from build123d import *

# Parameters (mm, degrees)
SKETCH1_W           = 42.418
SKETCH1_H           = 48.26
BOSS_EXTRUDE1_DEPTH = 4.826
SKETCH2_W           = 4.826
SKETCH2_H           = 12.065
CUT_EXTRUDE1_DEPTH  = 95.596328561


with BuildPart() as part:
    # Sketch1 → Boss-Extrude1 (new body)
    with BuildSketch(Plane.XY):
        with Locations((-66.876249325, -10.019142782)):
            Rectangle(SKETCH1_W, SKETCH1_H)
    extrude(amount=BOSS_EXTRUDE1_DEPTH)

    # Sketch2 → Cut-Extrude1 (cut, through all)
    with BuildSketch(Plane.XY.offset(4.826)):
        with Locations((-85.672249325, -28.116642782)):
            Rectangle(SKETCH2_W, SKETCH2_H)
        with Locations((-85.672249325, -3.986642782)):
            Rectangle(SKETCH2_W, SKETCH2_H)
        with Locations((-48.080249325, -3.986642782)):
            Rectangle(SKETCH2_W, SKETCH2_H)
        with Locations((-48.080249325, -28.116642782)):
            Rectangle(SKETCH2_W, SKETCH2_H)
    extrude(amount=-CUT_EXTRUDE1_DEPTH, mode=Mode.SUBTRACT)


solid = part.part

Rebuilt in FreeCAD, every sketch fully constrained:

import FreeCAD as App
import Part
import Sketcher
from FreeCAD import Vector
Q = App.Units.Quantity

doc = App.newDocument("Part")
body = doc.addObject("PartDesign::Body", "Body")

# Sketch on XY plane
sketch1 = body.newObject("Sketcher::SketchObject", "Sketch")
sketch1.AttachmentSupport = (doc.getObject("XY_Plane"), [""])
sketch1.MapMode = "FlatFace"
sketch1.addGeometry(Part.LineSegment(Vector(-88.085249, 14.110857, 0), Vector(-88.085249, -34.149143, 0)), False)
sketch1.addGeometry(Part.LineSegment(Vector(-88.085249, -34.149143, 0), Vector(-45.667249, -34.149143, 0)), False)
sketch1.addGeometry(Part.LineSegment(Vector(-45.667249, -34.149143, 0), Vector(-45.667249, 14.110857, 0)), False)
sketch1.addGeometry(Part.LineSegment(Vector(-45.667249, 14.110857, 0), Vector(-88.085249, 14.110857, 0)), False)
sketch1.addConstraint(Sketcher.Constraint("Coincident", 0, 2, 1, 1))
sketch1.addConstraint(Sketcher.Constraint("Coincident", 1, 2, 2, 1))
sketch1.addConstraint(Sketcher.Constraint("Coincident", 2, 2, 3, 1))
sketch1.addConstraint(Sketcher.Constraint("Coincident", 3, 2, 0, 1))
sketch1.addConstraint(Sketcher.Constraint("Vertical", 0))
sketch1.addConstraint(Sketcher.Constraint("Horizontal", 1))
sketch1.addConstraint(Sketcher.Constraint("Vertical", 2))
sketch1.addConstraint(Sketcher.Constraint("Horizontal", 3))
sketch1.addConstraint(Sketcher.Constraint("DistanceY", 0, 2, 0, 1, Q("1.9 in")))
sketch1.addConstraint(Sketcher.Constraint("DistanceX", 1, 1, 1, 2, Q("1.67 in")))
sketch1.addConstraint(Sketcher.Constraint("DistanceX", 0, 2, -1, 1, 88.085249))
sketch1.addConstraint(Sketcher.Constraint("DistanceY", 0, 2, -1, 1, 34.149143))
pad1 = body.newObject("PartDesign::Pad", "Pad")
pad1.Profile = sketch1
pad1.Length = Q("0.19 in")

# Sketch on XY plane
sketch2 = body.newObject("Sketcher::SketchObject", "Sketch001")
sketch2.AttachmentSupport = (doc.getObject("XY_Plane"), [""])
sketch2.MapMode = "FlatFace"
sketch2.AttachmentOffset = App.Placement(Vector(0, 0, 0.19 * 25.4), App.Rotation())
sketch2.addGeometry(Part.LineSegment(Vector(-88.085249, -22.084143, 0), Vector(-88.085249, -34.149143, 0)), False)
sketch2.addGeometry(Part.LineSegment(Vector(-88.085249, -34.149143, 0), Vector(-83.259249, -34.149143, 0)), False)
sketch2.addGeometry(Part.LineSegment(Vector(-83.259249, -34.149143, 0), Vector(-83.259249, -22.084143, 0)), False)
sketch2.addGeometry(Part.LineSegment(Vector(-83.259249, -22.084143, 0), Vector(-88.085249, -22.084143, 0)), False)
sketch2.addGeometry(Part.LineSegment(Vector(-88.085249, 2.045857, 0), Vector(-88.085249, -10.019143, 0)), False)
sketch2.addGeometry(Part.LineSegment(Vector(-88.085249, -10.019143, 0), Vector(-83.259249, -10.019143, 0)), False)
sketch2.addGeometry(Part.LineSegment(Vector(-83.259249, -10.019143, 0), Vector(-83.259249, 2.045857, 0)), False)
sketch2.addGeometry(Part.LineSegment(Vector(-83.259249, 2.045857, 0), Vector(-88.085249, 2.045857, 0)), False)
sketch2.addGeometry(Part.LineSegment(Vector(-50.493249, 2.045857, 0), Vector(-50.493249, -10.019143, 0)), False)
sketch2.addGeometry(Part.LineSegment(Vector(-50.493249, -10.019143, 0), Vector(-45.667249, -10.019143, 0)), False)
sketch2.addGeometry(Part.LineSegment(Vector(-45.667249, -10.019143, 0), Vector(-45.667249, 2.045857, 0)), False)
sketch2.addGeometry(Part.LineSegment(Vector(-45.667249, 2.045857, 0), Vector(-50.493249, 2.045857, 0)), False)
sketch2.addGeometry(Part.LineSegment(Vector(-50.493249, -22.084143, 0), Vector(-50.493249, -34.149143, 0)), False)
sketch2.addGeometry(Part.LineSegment(Vector(-50.493249, -34.149143, 0), Vector(-45.667249, -34.149143, 0)), False)
sketch2.addGeometry(Part.LineSegment(Vector(-45.667249, -34.149143, 0), Vector(-45.667249, -22.084143, 0)), False)
sketch2.addGeometry(Part.LineSegment(Vector(-45.667249, -22.084143, 0), Vector(-50.493249, -22.084143, 0)), False)
sketch2.addConstraint(Sketcher.Constraint("Coincident", 0, 2, 1, 1))
sketch2.addConstraint(Sketcher.Constraint("Coincident", 1, 2, 2, 1))
sketch2.addConstraint(Sketcher.Constraint("Coincident", 2, 2, 3, 1))
sketch2.addConstraint(Sketcher.Constraint("Coincident", 3, 2, 0, 1))
sketch2.addConstraint(Sketcher.Constraint("Coincident", 4, 2, 5, 1))
sketch2.addConstraint(Sketcher.Constraint("Coincident", 5, 2, 6, 1))
sketch2.addConstraint(Sketcher.Constraint("Coincident", 6, 2, 7, 1))
sketch2.addConstraint(Sketcher.Constraint("Coincident", 7, 2, 4, 1))
sketch2.addConstraint(Sketcher.Constraint("Coincident", 8, 2, 9, 1))
sketch2.addConstraint(Sketcher.Constraint("Coincident", 9, 2, 10, 1))
sketch2.addConstraint(Sketcher.Constraint("Coincident", 10, 2, 11, 1))
sketch2.addConstraint(Sketcher.Constraint("Coincident", 11, 2, 8, 1))
sketch2.addConstraint(Sketcher.Constraint("Coincident", 12, 2, 13, 1))
sketch2.addConstraint(Sketcher.Constraint("Coincident", 13, 2, 14, 1))
sketch2.addConstraint(Sketcher.Constraint("Coincident", 14, 2, 15, 1))
sketch2.addConstraint(Sketcher.Constraint("Coincident", 15, 2, 12, 1))
sketch2.addConstraint(Sketcher.Constraint("Vertical", 0))
sketch2.addConstraint(Sketcher.Constraint("Horizontal", 1))
sketch2.addConstraint(Sketcher.Constraint("Vertical", 2))
sketch2.addConstraint(Sketcher.Constraint("Horizontal", 3))
sketch2.addConstraint(Sketcher.Constraint("Vertical", 4))
sketch2.addConstraint(Sketcher.Constraint("Horizontal", 5))
sketch2.addConstraint(Sketcher.Constraint("Vertical", 6))
sketch2.addConstraint(Sketcher.Constraint("Horizontal", 7))
sketch2.addConstraint(Sketcher.Constraint("Vertical", 8))
sketch2.addConstraint(Sketcher.Constraint("Horizontal", 9))
sketch2.addConstraint(Sketcher.Constraint("Vertical", 10))
sketch2.addConstraint(Sketcher.Constraint("Horizontal", 11))
sketch2.addConstraint(Sketcher.Constraint("Vertical", 12))
sketch2.addConstraint(Sketcher.Constraint("Horizontal", 13))
sketch2.addConstraint(Sketcher.Constraint("Vertical", 14))
sketch2.addConstraint(Sketcher.Constraint("Horizontal", 15))
sketch2.addConstraint(Sketcher.Constraint("Horizontal", 5, 2, 8, 2))
sketch2.addConstraint(Sketcher.Constraint("Horizontal", 7, 2, 10, 2))
sketch2.addConstraint(Sketcher.Constraint("Horizontal", 1, 2, 12, 2))
sketch2.addConstraint(Sketcher.Constraint("Horizontal", 3, 2, 14, 2))
sketch2.addConstraint(Sketcher.Constraint("Vertical", 3, 2, 4, 2))
sketch2.addConstraint(Sketcher.Constraint("Vertical", 2, 2, 5, 2))
sketch2.addConstraint(Sketcher.Constraint("Vertical", 11, 2, 12, 2))
sketch2.addConstraint(Sketcher.Constraint("Vertical", 10, 2, 13, 2))
sketch2.addConstraint(Sketcher.Constraint("Equal", 7, 9))
sketch2.addConstraint(Sketcher.Constraint("Equal", 2, 4))
sketch2.addConstraint(Sketcher.Constraint("DistanceX", 1, 1, 1, 2, Q("0.19 in")))
sketch2.addConstraint(Sketcher.Constraint("DistanceY", 0, 2, 0, 1, Q("0.475 in")))
sketch2.addConstraint(Sketcher.Constraint("DistanceY", 0, 2, 4, 2, Q("0.95 in")))
sketch2.addConstraint(Sketcher.Constraint("DistanceX", 5, 2, 8, 2, Q("1.29 in")))
sketch2.addConstraint(Sketcher.Constraint("DistanceX", 0, 2, -1, 1, 88.085249))
sketch2.addConstraint(Sketcher.Constraint("DistanceY", 0, 2, -1, 1, 34.149143))
pocket1 = body.newObject("PartDesign::Pocket", "Pocket")
pocket1.Profile = sketch2
pocket1.Type = "ThroughAll"

doc.recompute()
